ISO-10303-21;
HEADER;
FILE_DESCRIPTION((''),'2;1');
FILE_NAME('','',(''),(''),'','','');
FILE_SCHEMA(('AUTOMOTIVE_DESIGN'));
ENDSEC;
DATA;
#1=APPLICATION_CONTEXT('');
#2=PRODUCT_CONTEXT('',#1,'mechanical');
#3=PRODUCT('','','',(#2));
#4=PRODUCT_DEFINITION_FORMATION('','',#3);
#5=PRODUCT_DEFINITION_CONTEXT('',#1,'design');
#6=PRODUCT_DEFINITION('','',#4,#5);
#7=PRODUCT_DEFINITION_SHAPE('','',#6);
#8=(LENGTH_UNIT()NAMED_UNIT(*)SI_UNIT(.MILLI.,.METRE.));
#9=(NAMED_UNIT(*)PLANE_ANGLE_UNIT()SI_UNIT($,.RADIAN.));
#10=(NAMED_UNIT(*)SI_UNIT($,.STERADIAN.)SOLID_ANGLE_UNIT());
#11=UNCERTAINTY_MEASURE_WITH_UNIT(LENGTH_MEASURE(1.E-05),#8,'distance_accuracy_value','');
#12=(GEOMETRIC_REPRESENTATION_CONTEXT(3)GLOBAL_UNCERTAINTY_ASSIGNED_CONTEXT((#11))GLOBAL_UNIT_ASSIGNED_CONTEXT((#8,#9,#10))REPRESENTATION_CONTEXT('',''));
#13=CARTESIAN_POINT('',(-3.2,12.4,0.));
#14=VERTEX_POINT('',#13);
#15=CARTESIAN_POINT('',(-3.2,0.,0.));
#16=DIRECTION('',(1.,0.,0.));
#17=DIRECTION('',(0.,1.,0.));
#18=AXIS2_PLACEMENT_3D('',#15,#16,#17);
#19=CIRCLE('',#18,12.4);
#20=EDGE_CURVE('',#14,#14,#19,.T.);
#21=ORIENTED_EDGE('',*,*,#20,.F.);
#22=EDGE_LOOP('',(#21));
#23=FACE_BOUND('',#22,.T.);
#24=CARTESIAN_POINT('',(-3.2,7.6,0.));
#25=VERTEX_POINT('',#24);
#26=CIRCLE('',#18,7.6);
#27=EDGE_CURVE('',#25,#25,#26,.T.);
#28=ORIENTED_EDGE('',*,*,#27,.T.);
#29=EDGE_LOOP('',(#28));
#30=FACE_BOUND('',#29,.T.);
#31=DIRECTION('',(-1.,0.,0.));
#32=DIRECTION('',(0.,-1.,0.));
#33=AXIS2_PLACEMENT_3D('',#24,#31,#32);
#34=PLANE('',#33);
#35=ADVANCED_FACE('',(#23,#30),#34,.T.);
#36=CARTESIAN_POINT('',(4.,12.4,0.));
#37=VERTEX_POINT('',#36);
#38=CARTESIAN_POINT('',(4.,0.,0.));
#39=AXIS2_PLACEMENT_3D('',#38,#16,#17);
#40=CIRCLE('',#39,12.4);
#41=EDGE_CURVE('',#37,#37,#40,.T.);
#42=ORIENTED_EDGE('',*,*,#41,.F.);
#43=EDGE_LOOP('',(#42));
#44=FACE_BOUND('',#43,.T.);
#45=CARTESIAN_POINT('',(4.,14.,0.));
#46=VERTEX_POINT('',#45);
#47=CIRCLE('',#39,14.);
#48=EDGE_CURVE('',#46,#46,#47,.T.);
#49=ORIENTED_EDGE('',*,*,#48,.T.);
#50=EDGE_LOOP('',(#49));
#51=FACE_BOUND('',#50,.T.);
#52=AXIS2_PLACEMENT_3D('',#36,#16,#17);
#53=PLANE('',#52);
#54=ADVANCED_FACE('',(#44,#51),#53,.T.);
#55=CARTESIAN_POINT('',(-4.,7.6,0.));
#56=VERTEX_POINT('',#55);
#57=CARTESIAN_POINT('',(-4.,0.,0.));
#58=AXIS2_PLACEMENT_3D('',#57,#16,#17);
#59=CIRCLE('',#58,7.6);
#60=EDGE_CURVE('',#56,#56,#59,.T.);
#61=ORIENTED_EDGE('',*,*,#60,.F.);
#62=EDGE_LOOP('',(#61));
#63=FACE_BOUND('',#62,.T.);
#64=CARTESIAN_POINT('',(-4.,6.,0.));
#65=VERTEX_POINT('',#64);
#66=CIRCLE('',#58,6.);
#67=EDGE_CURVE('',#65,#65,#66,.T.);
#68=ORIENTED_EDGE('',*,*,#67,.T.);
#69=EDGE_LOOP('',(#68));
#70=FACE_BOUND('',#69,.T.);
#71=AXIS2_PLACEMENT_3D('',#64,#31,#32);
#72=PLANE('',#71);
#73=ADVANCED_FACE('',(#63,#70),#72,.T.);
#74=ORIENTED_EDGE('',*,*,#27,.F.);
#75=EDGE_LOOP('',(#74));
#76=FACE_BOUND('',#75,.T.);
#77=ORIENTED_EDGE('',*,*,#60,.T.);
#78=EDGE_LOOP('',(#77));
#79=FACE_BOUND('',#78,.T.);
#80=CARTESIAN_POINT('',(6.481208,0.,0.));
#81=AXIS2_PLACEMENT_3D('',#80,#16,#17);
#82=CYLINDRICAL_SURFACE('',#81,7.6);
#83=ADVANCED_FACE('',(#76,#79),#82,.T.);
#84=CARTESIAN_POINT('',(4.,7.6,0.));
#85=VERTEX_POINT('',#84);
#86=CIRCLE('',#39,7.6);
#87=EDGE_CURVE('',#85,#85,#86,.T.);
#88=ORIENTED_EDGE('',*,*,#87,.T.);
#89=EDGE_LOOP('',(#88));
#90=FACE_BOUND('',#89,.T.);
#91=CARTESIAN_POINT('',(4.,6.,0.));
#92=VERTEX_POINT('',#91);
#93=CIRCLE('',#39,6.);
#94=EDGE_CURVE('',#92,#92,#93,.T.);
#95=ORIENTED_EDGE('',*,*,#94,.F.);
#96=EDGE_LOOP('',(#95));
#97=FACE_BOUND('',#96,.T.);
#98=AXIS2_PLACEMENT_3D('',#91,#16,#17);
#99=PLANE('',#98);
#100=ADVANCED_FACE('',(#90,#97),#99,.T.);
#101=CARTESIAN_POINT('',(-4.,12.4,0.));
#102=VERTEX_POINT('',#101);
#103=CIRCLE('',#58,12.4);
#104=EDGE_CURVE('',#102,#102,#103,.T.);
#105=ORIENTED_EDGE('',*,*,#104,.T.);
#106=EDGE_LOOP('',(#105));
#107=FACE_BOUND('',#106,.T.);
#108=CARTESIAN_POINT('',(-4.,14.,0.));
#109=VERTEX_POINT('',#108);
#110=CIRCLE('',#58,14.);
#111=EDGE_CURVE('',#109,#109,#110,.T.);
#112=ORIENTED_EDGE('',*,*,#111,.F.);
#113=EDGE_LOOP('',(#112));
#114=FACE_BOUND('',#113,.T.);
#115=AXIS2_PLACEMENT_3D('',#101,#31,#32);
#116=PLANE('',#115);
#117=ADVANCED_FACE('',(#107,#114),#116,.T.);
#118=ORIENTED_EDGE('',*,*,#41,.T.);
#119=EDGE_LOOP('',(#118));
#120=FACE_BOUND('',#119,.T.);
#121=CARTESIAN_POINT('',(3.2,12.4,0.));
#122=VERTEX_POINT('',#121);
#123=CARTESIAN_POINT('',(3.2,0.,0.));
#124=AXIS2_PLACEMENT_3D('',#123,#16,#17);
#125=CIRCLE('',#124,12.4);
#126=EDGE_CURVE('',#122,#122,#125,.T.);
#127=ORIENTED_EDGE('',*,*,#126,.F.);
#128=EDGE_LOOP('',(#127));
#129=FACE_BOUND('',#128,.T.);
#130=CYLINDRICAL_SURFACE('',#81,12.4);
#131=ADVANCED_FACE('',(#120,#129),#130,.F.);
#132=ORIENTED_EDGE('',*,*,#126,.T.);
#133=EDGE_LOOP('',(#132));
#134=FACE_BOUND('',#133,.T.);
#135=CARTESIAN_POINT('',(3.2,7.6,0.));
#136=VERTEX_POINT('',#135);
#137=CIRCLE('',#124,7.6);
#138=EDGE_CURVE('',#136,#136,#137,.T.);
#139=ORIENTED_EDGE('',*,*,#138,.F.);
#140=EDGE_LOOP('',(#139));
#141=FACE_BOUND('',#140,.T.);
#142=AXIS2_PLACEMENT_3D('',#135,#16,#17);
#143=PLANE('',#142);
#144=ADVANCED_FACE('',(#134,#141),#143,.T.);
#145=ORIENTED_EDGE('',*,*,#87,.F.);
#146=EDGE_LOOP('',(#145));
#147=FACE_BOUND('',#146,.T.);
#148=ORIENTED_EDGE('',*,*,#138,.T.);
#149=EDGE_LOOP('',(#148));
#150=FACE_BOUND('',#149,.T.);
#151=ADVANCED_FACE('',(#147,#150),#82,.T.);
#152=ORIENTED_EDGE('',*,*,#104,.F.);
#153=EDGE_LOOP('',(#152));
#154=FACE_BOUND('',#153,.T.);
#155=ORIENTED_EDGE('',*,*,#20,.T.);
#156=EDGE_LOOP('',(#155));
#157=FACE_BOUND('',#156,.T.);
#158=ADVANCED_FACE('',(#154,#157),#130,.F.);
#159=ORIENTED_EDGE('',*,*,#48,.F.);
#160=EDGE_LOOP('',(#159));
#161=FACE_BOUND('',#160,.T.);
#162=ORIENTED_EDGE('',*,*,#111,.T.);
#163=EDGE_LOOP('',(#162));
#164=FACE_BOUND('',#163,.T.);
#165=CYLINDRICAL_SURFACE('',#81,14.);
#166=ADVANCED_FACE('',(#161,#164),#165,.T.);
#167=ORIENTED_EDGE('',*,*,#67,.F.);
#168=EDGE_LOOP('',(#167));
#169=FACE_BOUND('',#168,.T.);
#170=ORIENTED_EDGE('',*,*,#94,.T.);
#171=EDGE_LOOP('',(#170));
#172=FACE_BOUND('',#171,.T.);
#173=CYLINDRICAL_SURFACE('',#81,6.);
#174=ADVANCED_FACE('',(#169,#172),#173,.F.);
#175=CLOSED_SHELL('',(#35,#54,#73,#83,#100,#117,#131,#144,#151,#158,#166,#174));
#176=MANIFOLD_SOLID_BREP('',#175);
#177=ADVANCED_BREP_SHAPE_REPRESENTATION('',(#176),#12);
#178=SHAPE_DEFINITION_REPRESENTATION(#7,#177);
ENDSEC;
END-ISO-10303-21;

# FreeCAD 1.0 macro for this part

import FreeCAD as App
import Part
import Sketcher

V = App.Vector

doc = App.newDocument("Part")
body = doc.addObject("PartDesign::Body", "Body")

# Sketch on XY plane
sketch1 = body.newObject("Sketcher::SketchObject", "Sketch")
sketch1.AttachmentSupport = (doc.getObject("XY_Plane"), [""])
sketch1.MapMode = "FlatFace"
sketch1.addGeometry(Part.LineSegment(V(-4, 6, 0), V(4, 6, 0)), False)
sketch1.addGeometry(Part.LineSegment(V(4, 6, 0), V(4, 7.6, 0)), False)
sketch1.addGeometry(Part.LineSegment(V(4, 7.6, 0), V(3.2, 7.6, 0)), False)
sketch1.addGeometry(Part.LineSegment(V(3.2, 7.6, 0), V(3.2, 12.4, 0)), False)
sketch1.addGeometry(Part.LineSegment(V(3.2, 12.4, 0), V(4, 12.4, 0)), False)
sketch1.addGeometry(Part.LineSegment(V(4, 12.4, 0), V(4, 14, 0)), False)
sketch1.addGeometry(Part.LineSegment(V(4, 14, 0), V(-4, 14, 0)), False)
sketch1.addGeometry(Part.LineSegment(V(-4, 14, 0), V(-4, 12.4, 0)), False)
sketch1.addGeometry(Part.LineSegment(V(-4, 12.4, 0), V(-3.2, 12.4, 0)), False)
sketch1.addGeometry(Part.LineSegment(V(-3.2, 12.4, 0), V(-3.2, 7.6, 0)), False)
sketch1.addGeometry(Part.LineSegment(V(-3.2, 7.6, 0), V(-4, 7.6, 0)), False)
sketch1.addGeometry(Part.LineSegment(V(-4, 7.6, 0), V(-4, 6, 0)), False)
sketch1.addConstraint(Sketcher.Constraint("Coincident", 0, 2, 1, 1))
sketch1.addConstraint(Sketcher.Constraint("Coincident", 1, 2, 2, 1))
sketch1.addConstraint(Sketcher.Constraint("Coincident", 2, 2, 3, 1))
sketch1.addConstraint(Sketcher.Constraint("Coincident", 3, 2, 4, 1))
sketch1.addConstraint(Sketcher.Constraint("Coincident", 4, 2, 5, 1))
sketch1.addConstraint(Sketcher.Constraint("Coincident", 5, 2, 6, 1))
sketch1.addConstraint(Sketcher.Constraint("Coincident", 6, 2, 7, 1))
sketch1.addConstraint(Sketcher.Constraint("Coincident", 7, 2, 8, 1))
sketch1.addConstraint(Sketcher.Constraint("Coincident", 8, 2, 9, 1))
sketch1.addConstraint(Sketcher.Constraint("Coincident", 9, 2, 10, 1))
sketch1.addConstraint(Sketcher.Constraint("Coincident", 10, 2, 11, 1))
sketch1.addConstraint(Sketcher.Constraint("Coincident", 11, 2, 0, 1))
sketch1.addConstraint(Sketcher.Constraint("Horizontal", 0))
sketch1.addConstraint(Sketcher.Constraint("Vertical", 1))
sketch1.addConstraint(Sketcher.Constraint("Horizontal", 2))
sketch1.addConstraint(Sketcher.Constraint("Vertical", 3))
sketch1.addConstraint(Sketcher.Constraint("Horizontal", 4))
sketch1.addConstraint(Sketcher.Constraint("Vertical", 5))
sketch1.addConstraint(Sketcher.Constraint("Horizontal", 6))
sketch1.addConstraint(Sketcher.Constraint("Vertical", 7))
sketch1.addConstraint(Sketcher.Constraint("Horizontal", 8))
sketch1.addConstraint(Sketcher.Constraint("Vertical", 9))
sketch1.addConstraint(Sketcher.Constraint("Horizontal", 10))
sketch1.addConstraint(Sketcher.Constraint("Vertical", 11))
sketch1.addConstraint(Sketcher.Constraint("Symmetric", 4, 2, 7, 2, -2))
sketch1.addConstraint(Sketcher.Constraint("Symmetric", 2, 2, 9, 2, -2))
sketch1.addConstraint(Sketcher.Constraint("Vertical", 1, 2, 4, 2))
sketch1.addConstraint(Sketcher.Constraint("Vertical", 7, 2, 10, 2))
sketch1.addConstraint(Sketcher.Constraint("Equal", 1, 5))
sketch1.addConstraint(Sketcher.Constraint("DistanceX", 0, 1, 0, 2, 8.0))
sketch1.addConstraint(Sketcher.Constraint("DistanceX", 2, 2, 2, 1, 0.8))
sketch1.addConstraint(Sketcher.Constraint("DistanceY", 1, 1, 1, 2, 1.6))
sketch1.addConstraint(Sketcher.Constraint("DistanceY", 3, 1, 3, 2, 4.8))
sketch1.addConstraint(Sketcher.Constraint("DistanceY", -1, 1, 0, 2, 6.0))
revolution = body.newObject("PartDesign::Revolution", "Revolution")
revolution.Profile = sketch1
revolution.ReferenceAxis = (sketch1, ["H_Axis"])
revolution.Angle = 360

doc.recompute()
